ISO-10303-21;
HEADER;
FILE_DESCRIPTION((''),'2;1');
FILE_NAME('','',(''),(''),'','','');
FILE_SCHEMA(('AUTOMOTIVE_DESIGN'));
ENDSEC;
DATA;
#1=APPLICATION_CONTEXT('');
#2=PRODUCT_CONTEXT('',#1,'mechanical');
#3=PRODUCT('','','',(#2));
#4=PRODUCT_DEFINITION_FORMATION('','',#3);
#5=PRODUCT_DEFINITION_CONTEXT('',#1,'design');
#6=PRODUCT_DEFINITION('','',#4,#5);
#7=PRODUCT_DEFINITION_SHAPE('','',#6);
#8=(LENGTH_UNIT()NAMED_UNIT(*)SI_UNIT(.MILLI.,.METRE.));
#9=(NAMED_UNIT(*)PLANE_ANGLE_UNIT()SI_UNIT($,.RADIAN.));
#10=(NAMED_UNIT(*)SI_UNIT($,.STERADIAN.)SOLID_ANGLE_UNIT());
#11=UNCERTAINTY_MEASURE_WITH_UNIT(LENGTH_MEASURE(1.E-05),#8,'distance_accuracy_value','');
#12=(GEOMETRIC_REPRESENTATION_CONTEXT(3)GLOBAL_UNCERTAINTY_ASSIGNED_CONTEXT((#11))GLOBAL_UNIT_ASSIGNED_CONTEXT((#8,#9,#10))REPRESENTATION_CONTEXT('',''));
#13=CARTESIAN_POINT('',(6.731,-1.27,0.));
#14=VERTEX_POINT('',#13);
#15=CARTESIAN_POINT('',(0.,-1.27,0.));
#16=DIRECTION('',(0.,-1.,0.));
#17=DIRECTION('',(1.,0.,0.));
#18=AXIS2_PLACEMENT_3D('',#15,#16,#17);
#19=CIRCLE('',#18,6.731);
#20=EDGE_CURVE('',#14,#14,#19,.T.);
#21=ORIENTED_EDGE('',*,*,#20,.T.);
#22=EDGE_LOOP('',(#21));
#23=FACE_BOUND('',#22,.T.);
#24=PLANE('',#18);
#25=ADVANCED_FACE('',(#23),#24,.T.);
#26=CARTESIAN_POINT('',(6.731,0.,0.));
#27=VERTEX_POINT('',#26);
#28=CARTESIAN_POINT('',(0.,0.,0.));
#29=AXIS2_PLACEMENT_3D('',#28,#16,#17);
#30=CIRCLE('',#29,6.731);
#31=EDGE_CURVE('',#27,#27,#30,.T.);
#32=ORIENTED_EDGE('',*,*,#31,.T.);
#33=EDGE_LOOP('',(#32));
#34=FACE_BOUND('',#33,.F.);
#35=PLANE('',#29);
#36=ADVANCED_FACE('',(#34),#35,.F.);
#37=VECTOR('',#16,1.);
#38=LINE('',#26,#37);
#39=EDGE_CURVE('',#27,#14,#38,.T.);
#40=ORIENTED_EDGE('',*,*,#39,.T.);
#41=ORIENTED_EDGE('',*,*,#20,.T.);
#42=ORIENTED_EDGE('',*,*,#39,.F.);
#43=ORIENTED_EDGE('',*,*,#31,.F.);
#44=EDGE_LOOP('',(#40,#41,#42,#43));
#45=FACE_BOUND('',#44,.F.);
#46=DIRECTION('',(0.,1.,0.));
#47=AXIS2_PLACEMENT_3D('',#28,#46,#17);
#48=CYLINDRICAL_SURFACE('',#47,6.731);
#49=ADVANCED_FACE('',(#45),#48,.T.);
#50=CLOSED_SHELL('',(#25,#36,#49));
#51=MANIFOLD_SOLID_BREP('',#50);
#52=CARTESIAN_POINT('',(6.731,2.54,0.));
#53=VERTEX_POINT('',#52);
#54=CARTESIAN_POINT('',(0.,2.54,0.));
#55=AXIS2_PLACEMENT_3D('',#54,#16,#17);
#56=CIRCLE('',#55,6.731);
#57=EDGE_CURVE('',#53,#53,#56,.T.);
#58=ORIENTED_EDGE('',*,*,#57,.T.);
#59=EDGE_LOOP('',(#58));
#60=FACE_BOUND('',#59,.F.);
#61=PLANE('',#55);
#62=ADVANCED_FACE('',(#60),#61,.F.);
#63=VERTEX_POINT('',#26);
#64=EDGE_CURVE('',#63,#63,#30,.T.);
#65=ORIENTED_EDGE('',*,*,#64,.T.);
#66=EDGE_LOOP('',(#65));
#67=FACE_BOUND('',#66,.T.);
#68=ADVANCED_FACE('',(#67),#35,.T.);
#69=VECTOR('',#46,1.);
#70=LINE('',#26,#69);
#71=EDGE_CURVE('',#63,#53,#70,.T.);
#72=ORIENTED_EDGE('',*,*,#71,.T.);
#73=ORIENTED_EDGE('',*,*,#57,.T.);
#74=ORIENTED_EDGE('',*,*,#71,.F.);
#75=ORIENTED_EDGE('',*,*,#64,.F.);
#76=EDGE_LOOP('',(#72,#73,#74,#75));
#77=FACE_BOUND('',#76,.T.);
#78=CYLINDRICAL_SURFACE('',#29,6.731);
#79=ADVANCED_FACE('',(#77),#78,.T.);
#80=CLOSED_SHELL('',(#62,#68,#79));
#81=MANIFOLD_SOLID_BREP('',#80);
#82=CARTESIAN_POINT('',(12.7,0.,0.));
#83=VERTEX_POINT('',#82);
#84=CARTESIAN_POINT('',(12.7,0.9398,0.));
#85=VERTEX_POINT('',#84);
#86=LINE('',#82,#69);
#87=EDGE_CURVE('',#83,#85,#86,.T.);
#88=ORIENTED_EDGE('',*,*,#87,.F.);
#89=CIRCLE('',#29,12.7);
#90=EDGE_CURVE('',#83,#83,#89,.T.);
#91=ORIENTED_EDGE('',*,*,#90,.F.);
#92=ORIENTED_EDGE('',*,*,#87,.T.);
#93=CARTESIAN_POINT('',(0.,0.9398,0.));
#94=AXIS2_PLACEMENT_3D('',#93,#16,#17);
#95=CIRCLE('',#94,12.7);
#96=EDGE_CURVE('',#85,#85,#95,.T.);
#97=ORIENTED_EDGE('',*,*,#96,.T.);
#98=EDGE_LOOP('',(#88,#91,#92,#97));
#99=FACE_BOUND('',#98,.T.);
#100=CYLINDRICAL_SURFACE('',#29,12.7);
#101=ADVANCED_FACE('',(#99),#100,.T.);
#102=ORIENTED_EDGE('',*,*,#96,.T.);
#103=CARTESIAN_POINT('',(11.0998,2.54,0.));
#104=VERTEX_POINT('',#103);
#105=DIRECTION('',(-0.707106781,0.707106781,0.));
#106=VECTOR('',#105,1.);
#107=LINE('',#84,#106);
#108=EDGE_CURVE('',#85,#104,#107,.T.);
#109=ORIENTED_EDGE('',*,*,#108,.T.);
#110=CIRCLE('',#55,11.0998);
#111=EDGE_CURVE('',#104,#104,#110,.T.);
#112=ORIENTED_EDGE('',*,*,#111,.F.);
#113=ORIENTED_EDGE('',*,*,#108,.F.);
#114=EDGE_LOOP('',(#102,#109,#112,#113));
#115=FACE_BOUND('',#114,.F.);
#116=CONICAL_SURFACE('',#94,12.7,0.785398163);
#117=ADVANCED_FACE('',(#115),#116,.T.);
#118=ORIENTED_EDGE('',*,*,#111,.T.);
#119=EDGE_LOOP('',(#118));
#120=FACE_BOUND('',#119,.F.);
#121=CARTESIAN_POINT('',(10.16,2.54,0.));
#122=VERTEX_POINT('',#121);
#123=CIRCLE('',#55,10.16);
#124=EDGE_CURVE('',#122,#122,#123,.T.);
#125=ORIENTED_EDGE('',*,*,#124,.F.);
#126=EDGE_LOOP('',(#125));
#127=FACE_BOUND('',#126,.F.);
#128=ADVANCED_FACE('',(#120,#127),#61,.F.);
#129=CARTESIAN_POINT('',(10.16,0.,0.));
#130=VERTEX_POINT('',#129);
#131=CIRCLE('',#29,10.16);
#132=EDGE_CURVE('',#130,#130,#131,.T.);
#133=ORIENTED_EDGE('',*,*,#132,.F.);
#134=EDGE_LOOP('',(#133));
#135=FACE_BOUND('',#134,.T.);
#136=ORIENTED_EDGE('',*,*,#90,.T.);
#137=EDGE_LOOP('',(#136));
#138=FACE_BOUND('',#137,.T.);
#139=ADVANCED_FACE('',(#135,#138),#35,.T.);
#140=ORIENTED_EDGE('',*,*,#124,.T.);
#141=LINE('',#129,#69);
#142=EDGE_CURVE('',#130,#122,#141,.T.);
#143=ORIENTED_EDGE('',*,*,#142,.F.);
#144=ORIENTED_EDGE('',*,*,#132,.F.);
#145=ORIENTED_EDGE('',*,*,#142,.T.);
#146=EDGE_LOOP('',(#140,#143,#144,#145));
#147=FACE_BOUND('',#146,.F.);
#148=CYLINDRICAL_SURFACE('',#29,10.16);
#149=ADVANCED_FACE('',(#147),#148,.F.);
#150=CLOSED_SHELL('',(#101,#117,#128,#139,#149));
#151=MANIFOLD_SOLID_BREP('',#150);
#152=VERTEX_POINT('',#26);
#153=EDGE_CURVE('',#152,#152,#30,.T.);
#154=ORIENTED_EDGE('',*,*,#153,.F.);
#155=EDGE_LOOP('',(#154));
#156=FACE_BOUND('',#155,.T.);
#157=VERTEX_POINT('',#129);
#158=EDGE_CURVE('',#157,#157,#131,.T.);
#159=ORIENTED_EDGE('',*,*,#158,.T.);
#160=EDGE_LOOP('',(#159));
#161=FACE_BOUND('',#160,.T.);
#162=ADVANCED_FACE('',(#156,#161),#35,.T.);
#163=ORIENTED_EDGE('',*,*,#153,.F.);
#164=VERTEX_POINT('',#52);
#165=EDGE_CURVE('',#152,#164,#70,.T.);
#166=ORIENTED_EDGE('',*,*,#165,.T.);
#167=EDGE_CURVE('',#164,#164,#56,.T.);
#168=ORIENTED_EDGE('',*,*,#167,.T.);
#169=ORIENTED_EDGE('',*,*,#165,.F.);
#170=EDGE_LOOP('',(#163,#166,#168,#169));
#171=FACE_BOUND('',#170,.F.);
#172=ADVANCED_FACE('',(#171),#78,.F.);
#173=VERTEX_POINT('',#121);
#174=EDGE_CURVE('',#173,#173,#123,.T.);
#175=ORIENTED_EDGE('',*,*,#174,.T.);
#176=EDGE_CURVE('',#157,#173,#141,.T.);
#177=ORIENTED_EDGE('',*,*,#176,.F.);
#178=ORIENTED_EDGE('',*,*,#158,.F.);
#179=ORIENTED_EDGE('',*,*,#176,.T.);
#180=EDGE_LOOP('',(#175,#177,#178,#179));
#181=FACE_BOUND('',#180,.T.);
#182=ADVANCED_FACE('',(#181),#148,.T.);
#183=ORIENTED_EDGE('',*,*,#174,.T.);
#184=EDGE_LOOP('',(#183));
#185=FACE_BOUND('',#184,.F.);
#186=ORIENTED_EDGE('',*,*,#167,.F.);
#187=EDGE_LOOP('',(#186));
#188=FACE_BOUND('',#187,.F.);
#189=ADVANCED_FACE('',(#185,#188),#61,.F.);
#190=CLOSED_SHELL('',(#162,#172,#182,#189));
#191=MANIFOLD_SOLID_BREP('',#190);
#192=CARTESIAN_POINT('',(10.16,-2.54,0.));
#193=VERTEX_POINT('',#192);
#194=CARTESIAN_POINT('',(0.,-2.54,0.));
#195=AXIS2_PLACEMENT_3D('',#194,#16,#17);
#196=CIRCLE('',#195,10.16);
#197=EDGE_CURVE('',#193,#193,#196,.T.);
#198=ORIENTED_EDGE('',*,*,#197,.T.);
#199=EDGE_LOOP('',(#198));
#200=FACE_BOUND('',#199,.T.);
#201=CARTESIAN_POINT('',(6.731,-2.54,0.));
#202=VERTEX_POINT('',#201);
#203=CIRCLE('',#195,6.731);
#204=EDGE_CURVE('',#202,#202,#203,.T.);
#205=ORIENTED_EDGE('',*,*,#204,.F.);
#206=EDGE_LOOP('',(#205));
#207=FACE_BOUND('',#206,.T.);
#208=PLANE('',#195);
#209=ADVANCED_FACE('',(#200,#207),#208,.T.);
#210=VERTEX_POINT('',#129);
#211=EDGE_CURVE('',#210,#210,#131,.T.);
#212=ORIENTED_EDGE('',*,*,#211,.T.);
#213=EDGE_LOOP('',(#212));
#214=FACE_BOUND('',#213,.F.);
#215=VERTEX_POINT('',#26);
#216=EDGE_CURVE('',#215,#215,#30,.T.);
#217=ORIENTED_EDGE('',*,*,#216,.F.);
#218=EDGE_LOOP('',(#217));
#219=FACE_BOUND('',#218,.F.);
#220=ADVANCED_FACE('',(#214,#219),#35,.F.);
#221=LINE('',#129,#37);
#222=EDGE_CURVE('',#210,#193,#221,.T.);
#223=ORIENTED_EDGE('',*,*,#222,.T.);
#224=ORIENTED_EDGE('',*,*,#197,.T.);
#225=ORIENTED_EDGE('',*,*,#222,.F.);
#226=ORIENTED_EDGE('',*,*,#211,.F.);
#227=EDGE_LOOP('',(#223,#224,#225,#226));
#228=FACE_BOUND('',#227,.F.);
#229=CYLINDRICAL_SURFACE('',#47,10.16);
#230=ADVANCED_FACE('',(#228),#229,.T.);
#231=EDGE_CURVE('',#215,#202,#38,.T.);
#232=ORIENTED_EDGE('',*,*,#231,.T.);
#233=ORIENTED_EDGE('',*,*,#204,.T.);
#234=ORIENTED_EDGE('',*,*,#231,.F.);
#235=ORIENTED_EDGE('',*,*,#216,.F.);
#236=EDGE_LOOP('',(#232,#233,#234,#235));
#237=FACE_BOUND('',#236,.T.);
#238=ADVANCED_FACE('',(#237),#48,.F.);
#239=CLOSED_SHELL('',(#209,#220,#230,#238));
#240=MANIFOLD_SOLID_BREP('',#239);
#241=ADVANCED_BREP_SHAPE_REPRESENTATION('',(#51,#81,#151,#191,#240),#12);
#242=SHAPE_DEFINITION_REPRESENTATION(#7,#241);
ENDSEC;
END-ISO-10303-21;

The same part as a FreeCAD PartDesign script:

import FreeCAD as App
import Part
import Sketcher
Q = App.Units.Quantity


def edges_at(feature, points):
    """Names of the edges that pass closest to the given points."""
    edges = feature.Shape.Edges
    near = lambda p: min(range(len(edges)), key=lambda i: edges[i].distToShape(Part.Vertex(*p))[0])
    return sorted({f"Edge{near(p) + 1}" for p in points})

doc = App.newDocument("Part")
body = doc.addObject("PartDesign::Body", "Body")

sketch1 = doc.addObject("Sketcher::SketchObject", "Sketch")
body.addObject(sketch1)
sketch1.AttachmentSupport = (doc.XZ_Plane, [""])
sketch1.MapMode = "FlatFace"
sketch1.addGeometry([
    Part.Circle(App.Vector(0, 0, 0), App.Vector(0, 0, 1), 10),
    Part.Circle(App.Vector(0, 0, 0), App.Vector(0, 0, 1), 7),
], False)
sketch1.addConstraint([
    Sketcher.Constraint("Coincident", 0, 3, -1, 1),
    Sketcher.Constraint("Coincident", 1, 3, -1, 1),
    Sketcher.Constraint("Diameter", 0, Q("0.8 in")),
    Sketcher.Constraint("Diameter", 1, Q("0.53 in")),
])
pad1 = doc.addObject("PartDesign::Pad", "Pad")
body.addObject(pad1)
pad1.Profile = sketch1
pad1.Length = Q("0.1 in")
body2 = doc.addObject("PartDesign::Body", "Body001")

sketch2 = doc.addObject("Sketcher::SketchObject", "Sketch001")
body2.addObject(sketch2)
sketch2.AttachmentSupport = (doc.getObject("XZ_Plane001"), [""])
sketch2.MapMode = "FlatFace"
sketch2.addGeometry(Part.Circle(App.Vector(0, 0, 0), App.Vector(0, 0, 1), 7), False)
sketch2.addConstraint([
    Sketcher.Constraint("Coincident", 0, 3, -1, 1),
    Sketcher.Constraint("Diameter", 0, Q("0.53 in")),
])
pad2 = doc.addObject("PartDesign::Pad", "Pad001")
body2.addObject(pad2)
pad2.Profile = sketch2
pad2.Length = Q("0.05 in")
body3 = doc.addObject("PartDesign::Body", "Body002")

sketch3 = doc.addObject("Sketcher::SketchObject", "Sketch002")
body3.addObject(sketch3)
sketch3.AttachmentSupport = (doc.getObject("XZ_Plane002"), [""])
sketch3.MapMode = "FlatFace"
sketch3.addGeometry([
    Part.Circle(App.Vector(0, 0, 0), App.Vector(0, 0, 1), 13),
    Part.Circle(App.Vector(0, 0, 0), App.Vector(0, 0, 1), 10),
], False)
sketch3.addConstraint([
    Sketcher.Constraint("Coincident", 0, 3, -1, 1),
    Sketcher.Constraint("Coincident", 1, 3, -1, 1),
    Sketcher.Constraint("Diameter", 0, Q("1 in")),
    Sketcher.Constraint("Diameter", 1, Q("0.8 in")),
])
pad3 = doc.addObject("PartDesign::Pad", "Pad002")
body3.addObject(pad3)
pad3.Profile = sketch3
pad3.Length = Q("0.1 in")
pad3.Reversed = True
doc.recompute()

chamfer = doc.addObject("PartDesign::Chamfer", "Chamfer")
body3.addObject(chamfer)
chamfer.Base = (pad3, edges_at(pad3, [(-12.7, 2.54, 0)]))
chamfer.Size = Q("0.063 in")
body4 = doc.addObject("PartDesign::Body", "Body003")

sketch4 = doc.addObject("Sketcher::SketchObject", "Sketch003")
body4.addObject(sketch4)
sketch4.AttachmentSupport = (doc.getObject("XZ_Plane003"), [""])
sketch4.MapMode = "FlatFace"
sketch4.addGeometry([
    Part.Circle(App.Vector(0, 0, 0), App.Vector(0, 0, 1), 10),
    Part.Circle(App.Vector(0, 0, 0), App.Vector(0, 0, 1), 7),
], False)
sketch4.addConstraint([
    Sketcher.Constraint("Coincident", 0, 3, -1, 1),
    Sketcher.Constraint("Coincident", 1, 3, -1, 1),
    Sketcher.Constraint("Diameter", 0, Q("0.8 in")),
    Sketcher.Constraint("Diameter", 1, Q("0.53 in")),
])
pad4 = doc.addObject("PartDesign::Pad", "Pad003")
body4.addObject(pad4)
pad4.Profile = sketch4
pad4.Length = Q("0.1 in")
pad4.Reversed = True
body5 = doc.addObject("PartDesign::Body", "Body004")

sketch5 = doc.addObject("Sketcher::SketchObject", "Sketch004")
body5.addObject(sketch5)
sketch5.AttachmentSupport = (doc.getObject("XZ_Plane004"), [""])
sketch5.MapMode = "FlatFace"
sketch5.addGeometry(Part.Circle(App.Vector(0, 0, 0), App.Vector(0, 0, 1), 7), False)
sketch5.addConstraint([
    Sketcher.Constraint("Coincident", 0, 3, -1, 1),
    Sketcher.Constraint("Diameter", 0, Q("0.53 in")),
])
pad5 = doc.addObject("PartDesign::Pad", "Pad004")
body5.addObject(pad5)
pad5.Profile = sketch5
pad5.Length = Q("0.1 in")
pad5.Reversed = True

doc.recompute()
